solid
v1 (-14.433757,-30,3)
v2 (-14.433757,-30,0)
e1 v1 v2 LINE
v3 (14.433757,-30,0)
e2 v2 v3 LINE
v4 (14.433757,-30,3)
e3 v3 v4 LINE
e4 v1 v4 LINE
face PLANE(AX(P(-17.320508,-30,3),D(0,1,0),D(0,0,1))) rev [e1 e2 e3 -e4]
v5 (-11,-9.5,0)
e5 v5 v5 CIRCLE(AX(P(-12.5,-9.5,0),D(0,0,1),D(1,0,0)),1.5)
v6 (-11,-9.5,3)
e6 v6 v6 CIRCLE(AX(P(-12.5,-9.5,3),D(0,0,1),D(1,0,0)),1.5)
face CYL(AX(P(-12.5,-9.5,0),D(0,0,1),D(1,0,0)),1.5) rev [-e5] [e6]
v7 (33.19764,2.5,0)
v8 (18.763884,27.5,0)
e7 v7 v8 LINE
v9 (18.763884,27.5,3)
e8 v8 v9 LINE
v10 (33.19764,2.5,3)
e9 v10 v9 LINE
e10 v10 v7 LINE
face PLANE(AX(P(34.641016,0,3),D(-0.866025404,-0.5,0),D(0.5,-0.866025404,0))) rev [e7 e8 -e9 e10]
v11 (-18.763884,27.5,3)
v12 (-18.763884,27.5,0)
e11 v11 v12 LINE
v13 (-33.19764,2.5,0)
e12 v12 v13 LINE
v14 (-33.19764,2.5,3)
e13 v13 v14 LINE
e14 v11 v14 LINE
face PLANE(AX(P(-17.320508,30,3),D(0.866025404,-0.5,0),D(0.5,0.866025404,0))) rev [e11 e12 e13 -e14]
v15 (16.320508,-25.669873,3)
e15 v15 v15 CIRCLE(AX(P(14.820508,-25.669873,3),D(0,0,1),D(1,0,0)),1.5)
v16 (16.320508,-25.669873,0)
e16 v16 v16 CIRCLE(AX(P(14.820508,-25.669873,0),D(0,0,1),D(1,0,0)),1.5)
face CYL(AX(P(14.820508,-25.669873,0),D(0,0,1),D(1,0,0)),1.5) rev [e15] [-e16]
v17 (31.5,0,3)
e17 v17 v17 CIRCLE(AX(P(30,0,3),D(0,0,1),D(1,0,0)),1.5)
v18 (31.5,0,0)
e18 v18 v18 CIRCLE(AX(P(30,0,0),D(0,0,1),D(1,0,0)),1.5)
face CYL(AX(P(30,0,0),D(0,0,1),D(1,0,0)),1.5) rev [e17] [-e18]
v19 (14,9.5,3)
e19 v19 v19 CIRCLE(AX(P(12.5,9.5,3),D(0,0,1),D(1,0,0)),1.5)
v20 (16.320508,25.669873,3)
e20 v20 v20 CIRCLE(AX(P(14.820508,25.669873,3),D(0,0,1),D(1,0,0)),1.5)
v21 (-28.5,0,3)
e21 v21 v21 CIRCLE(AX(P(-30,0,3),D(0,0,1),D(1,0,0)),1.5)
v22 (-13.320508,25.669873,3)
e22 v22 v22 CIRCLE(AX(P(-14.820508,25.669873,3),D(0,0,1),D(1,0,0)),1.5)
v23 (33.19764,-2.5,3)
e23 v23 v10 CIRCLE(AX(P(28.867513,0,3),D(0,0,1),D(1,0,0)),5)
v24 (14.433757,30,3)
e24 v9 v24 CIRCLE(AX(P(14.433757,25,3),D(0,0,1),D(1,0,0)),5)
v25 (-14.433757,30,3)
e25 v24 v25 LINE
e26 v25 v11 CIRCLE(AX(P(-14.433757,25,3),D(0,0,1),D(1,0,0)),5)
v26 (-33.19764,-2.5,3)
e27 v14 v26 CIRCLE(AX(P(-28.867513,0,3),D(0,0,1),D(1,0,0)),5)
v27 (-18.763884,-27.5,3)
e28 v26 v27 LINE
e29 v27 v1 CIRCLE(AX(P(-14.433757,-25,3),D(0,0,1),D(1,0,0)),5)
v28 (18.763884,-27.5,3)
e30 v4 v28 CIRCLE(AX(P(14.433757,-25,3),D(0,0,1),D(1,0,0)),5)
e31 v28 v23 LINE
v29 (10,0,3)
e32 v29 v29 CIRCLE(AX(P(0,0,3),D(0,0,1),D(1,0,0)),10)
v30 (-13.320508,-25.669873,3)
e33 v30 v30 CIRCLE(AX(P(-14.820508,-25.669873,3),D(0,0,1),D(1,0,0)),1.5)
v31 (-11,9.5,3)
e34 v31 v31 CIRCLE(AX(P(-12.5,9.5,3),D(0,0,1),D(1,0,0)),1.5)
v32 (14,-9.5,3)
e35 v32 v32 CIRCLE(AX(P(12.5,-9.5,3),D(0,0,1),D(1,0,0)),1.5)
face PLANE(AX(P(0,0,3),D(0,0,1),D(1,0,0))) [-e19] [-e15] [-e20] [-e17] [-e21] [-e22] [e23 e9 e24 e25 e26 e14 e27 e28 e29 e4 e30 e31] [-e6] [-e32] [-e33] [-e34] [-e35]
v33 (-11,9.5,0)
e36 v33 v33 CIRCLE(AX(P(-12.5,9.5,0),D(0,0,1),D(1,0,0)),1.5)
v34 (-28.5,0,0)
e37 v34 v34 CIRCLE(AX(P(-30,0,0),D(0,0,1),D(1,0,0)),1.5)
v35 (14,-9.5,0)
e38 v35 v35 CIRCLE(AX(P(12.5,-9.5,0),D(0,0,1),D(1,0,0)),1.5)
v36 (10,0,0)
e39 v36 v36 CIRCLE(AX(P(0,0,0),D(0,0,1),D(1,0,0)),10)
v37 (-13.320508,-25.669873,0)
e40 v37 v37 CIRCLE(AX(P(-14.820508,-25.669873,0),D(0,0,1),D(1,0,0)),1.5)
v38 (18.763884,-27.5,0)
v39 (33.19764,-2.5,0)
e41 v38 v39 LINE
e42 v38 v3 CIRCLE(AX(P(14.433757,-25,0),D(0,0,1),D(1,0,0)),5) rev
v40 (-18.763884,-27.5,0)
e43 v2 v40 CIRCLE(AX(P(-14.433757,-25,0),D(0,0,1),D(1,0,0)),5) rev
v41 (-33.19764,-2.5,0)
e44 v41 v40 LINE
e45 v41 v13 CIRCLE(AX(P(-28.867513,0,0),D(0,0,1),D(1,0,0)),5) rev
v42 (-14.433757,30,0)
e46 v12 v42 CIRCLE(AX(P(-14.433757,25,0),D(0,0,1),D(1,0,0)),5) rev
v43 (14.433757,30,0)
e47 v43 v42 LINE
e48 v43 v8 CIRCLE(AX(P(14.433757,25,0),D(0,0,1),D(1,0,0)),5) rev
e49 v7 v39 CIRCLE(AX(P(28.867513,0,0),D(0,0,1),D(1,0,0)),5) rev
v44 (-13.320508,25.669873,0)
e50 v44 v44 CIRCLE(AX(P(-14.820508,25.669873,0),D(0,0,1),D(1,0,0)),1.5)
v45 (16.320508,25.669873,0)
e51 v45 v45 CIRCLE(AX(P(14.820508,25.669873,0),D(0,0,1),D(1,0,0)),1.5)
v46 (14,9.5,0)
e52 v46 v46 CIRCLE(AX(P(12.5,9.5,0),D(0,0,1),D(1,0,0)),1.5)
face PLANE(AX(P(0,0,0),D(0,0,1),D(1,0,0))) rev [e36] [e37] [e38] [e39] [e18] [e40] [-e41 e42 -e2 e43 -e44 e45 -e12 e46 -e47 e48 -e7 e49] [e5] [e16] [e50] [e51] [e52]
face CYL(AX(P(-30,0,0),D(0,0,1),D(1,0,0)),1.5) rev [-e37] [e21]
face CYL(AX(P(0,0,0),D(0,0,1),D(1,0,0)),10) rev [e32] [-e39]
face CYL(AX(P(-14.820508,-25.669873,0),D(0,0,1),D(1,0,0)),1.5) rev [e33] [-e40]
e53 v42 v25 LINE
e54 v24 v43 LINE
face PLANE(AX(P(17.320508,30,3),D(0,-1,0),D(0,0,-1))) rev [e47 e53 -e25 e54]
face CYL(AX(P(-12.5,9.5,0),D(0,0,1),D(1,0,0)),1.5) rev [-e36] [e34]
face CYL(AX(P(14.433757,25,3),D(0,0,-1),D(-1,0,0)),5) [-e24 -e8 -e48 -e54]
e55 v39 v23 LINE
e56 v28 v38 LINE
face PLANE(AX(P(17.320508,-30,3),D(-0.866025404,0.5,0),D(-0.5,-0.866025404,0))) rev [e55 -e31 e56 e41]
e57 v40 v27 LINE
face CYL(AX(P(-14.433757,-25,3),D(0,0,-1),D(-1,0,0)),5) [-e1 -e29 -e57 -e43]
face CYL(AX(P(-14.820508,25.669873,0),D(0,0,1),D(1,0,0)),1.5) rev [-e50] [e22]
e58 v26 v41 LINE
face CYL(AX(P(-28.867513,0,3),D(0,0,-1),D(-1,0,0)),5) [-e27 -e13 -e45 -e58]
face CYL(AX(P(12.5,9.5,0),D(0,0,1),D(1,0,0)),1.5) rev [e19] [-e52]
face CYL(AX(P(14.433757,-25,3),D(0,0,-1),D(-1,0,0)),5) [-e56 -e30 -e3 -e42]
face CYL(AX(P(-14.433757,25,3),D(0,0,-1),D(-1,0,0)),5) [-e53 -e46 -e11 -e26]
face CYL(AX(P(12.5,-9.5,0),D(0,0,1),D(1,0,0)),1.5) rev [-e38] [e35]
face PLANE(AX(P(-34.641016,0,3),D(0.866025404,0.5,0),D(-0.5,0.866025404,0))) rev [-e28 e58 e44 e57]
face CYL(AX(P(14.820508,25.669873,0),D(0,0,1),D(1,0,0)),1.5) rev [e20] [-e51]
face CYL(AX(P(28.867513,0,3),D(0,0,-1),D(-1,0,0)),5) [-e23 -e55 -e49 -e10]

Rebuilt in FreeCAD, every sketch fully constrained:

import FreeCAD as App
import Part
import Sketcher
from FreeCAD import Vector
Q = App.Units.Quantity


def edges_at(feature, points):
    """Names of the edges that pass closest to the given points."""
    edges = feature.Shape.Edges
    near = lambda p: min(range(len(edges)), key=lambda i: edges[i].distToShape(Part.Vertex(*p))[0])
    return sorted({f"Edge{near(p) + 1}" for p in points})

doc = App.newDocument("Part")
body = doc.addObject("PartDesign::Body", "Body")

# Sketch on XY plane
sketch1 = body.newObject("Sketcher::SketchObject", "Sketch")
sketch1.AttachmentSupport = (doc.getObject("XY_Plane"), [""])
sketch1.MapMode = "FlatFace"
sketch1.addGeometry([
    Part.LineSegment(Vector(35, 0, 0), Vector(17, 30, 0)),  # 0
    Part.LineSegment(Vector(17, 30, 0), Vector(-17, 30, 0)),  # 1
    Part.LineSegment(Vector(-17, 30, 0), Vector(-35, 0, 0)),  # 2
    Part.LineSegment(Vector(-35, 0, 0), Vector(-17, -30, 0)),  # 3
    Part.LineSegment(Vector(-17, -30, 0), Vector(17, -30, 0)),  # 4
    Part.LineSegment(Vector(17, -30, 0), Vector(35, 0, 0)),  # 5
], False)
sketch1.addConstraint([
    Sketcher.Constraint("Coincident", 0, 2, 1, 1),
    Sketcher.Constraint("Coincident", 1, 2, 2, 1),
    Sketcher.Constraint("Coincident", 2, 2, 3, 1),
    Sketcher.Constraint("Coincident", 3, 2, 4, 1),
    Sketcher.Constraint("Coincident", 4, 2, 5, 1),
    Sketcher.Constraint("Coincident", 5, 2, 0, 1),
    Sketcher.Constraint("Horizontal", 1),
    Sketcher.Constraint("Horizontal", 4),
    Sketcher.Constraint("Symmetric", 0, 2, 3, 2, -1, 1),
    Sketcher.Constraint("Symmetric", 2, 2, 5, 2, -1, 1),
    Sketcher.Constraint("PointOnObject", 2, 2, -1),
    Sketcher.Constraint("Parallel", 2, 5),
    Sketcher.Constraint("Vertical", 1, 2, 3, 2),
    Sketcher.Constraint("Angle", 0, Q("120 deg")),
    Sketcher.Constraint("DistanceY", -1, 1, 0, 2, Q("30 mm")),
    Sketcher.Constraint("DistanceX", 1, 2, 1, 1, Q("34.641016 mm")),
])
pad1 = body.newObject("PartDesign::Pad", "Pad")
pad1.Profile = sketch1
pad1.Length = 3

# Sketch on XY plane
sketch2 = body.newObject("Sketcher::SketchObject", "Sketch001")
sketch2.AttachmentSupport = (doc.getObject("XY_Plane"), [""])
sketch2.MapMode = "FlatFace"
sketch2.AttachmentOffset = App.Placement(Vector(0, 0, 3), App.Rotation())
sketch2.addGeometry([
    Part.Circle(Vector(0, 0, 0), Vector(0, 0, 1), 10),  # 0
    Part.Circle(Vector(-12.5, 9.5, 0), Vector(0, 0, 1), 1.5),  # 1
    Part.Circle(Vector(12.5, 9.5, 0), Vector(0, 0, 1), 1.5),  # 2
    Part.Circle(Vector(-12.5, -9.5, 0), Vector(0, 0, 1), 1.5),  # 3
    Part.Circle(Vector(12.5, -9.5, 0), Vector(0, 0, 1), 1.5),  # 4
], False)
sketch2.addConstraint([
    Sketcher.Constraint("Coincident", 0, 3, -1, 1),
    Sketcher.Constraint("Equal", 1, 2),
    Sketcher.Constraint("Equal", 2, 3),
    Sketcher.Constraint("Equal", 3, 4),
    Sketcher.Constraint("Symmetric", 2, 3, 3, 3, -1, 1),
    Sketcher.Constraint("Symmetric", 1, 3, 4, 3, -1, 1),
    Sketcher.Constraint("Symmetric", 1, 3, 2, 3, -2),
    Sketcher.Constraint("Diameter", 0, Q("20 mm")),
    Sketcher.Constraint("Diameter", 1, Q("3 mm")),
    Sketcher.Constraint("DistanceX", 1, 3, 2, 3, Q("25 mm")),
    Sketcher.Constraint("DistanceY", 3, 3, 1, 3, Q("19 mm")),
])
pocket1 = body.newObject("PartDesign::Pocket", "Pocket")
pocket1.Profile = sketch2
pocket1.Length = 3

# Sketch on XY plane
sketch3 = body.newObject("Sketcher::SketchObject", "Sketch002")
sketch3.AttachmentSupport = (doc.getObject("XY_Plane"), [""])
sketch3.MapMode = "FlatFace"
sketch3.AttachmentOffset = App.Placement(Vector(0, 0, 3), App.Rotation())
sketch3.addGeometry([
    Part.Circle(Vector(-30, 0, 0), Vector(0, 0, 1), 1.5),  # 0
    Part.Circle(Vector(30, 0, 0), Vector(0, 0, 1), 1.5),  # 1
    Part.Circle(Vector(-14.8, -25.7, 0), Vector(0, 0, 1), 1.5),  # 2
    Part.Circle(Vector(14.8, -25.7, 0), Vector(0, 0, 1), 1.5),  # 3
    Part.Circle(Vector(-14.8, 25.7, 0), Vector(0, 0, 1), 1.5),  # 4
    Part.Circle(Vector(14.8, 25.7, 0), Vector(0, 0, 1), 1.5),  # 5
], False)
sketch3.addConstraint([
    Sketcher.Constraint("Equal", 0, 1),
    Sketcher.Constraint("Equal", 1, 2),
    Sketcher.Constraint("Equal", 2, 3),
    Sketcher.Constraint("Equal", 3, 4),
    Sketcher.Constraint("Equal", 4, 5),
    Sketcher.Constraint("Symmetric", 0, 3, 1, 3, -1, 1),
    Sketcher.Constraint("Symmetric", 3, 3, 4, 3, -1, 1),
    Sketcher.Constraint("Symmetric", 2, 3, 5, 3, -1, 1),
    Sketcher.Constraint("Symmetric", 2, 3, 3, 3, -2),
    Sketcher.Constraint("PointOnObject", 0, 3, -1),
    Sketcher.Constraint("Diameter", 0, Q("3 mm")),
    Sketcher.Constraint("DistanceX", 0, 3, -1, 1, Q("30 mm")),
    Sketcher.Constraint("DistanceX", 2, 3, -1, 1, Q("14.820508 mm")),
    Sketcher.Constraint("DistanceY", 2, 3, -1, 1, Q("25.669873 mm")),
])
pocket2 = body.newObject("PartDesign::Pocket", "Pocket001")
pocket2.Profile = sketch3
pocket2.Length = 3
doc.recompute()

fillet = body.newObject("PartDesign::Fillet", "Fillet")
fillet.Base = (pocket2, edges_at(pocket2, [
    (17.321, -30, 1.5),
    (-17.321, -30, 1.5),
    (-34.641, 0, 1.5),
    (-17.321, 30, 1.5),
    (17.321, 30, 1.5),
    (34.641, 0, 1.5),
]))
fillet.Radius = 5

doc.recompute()
